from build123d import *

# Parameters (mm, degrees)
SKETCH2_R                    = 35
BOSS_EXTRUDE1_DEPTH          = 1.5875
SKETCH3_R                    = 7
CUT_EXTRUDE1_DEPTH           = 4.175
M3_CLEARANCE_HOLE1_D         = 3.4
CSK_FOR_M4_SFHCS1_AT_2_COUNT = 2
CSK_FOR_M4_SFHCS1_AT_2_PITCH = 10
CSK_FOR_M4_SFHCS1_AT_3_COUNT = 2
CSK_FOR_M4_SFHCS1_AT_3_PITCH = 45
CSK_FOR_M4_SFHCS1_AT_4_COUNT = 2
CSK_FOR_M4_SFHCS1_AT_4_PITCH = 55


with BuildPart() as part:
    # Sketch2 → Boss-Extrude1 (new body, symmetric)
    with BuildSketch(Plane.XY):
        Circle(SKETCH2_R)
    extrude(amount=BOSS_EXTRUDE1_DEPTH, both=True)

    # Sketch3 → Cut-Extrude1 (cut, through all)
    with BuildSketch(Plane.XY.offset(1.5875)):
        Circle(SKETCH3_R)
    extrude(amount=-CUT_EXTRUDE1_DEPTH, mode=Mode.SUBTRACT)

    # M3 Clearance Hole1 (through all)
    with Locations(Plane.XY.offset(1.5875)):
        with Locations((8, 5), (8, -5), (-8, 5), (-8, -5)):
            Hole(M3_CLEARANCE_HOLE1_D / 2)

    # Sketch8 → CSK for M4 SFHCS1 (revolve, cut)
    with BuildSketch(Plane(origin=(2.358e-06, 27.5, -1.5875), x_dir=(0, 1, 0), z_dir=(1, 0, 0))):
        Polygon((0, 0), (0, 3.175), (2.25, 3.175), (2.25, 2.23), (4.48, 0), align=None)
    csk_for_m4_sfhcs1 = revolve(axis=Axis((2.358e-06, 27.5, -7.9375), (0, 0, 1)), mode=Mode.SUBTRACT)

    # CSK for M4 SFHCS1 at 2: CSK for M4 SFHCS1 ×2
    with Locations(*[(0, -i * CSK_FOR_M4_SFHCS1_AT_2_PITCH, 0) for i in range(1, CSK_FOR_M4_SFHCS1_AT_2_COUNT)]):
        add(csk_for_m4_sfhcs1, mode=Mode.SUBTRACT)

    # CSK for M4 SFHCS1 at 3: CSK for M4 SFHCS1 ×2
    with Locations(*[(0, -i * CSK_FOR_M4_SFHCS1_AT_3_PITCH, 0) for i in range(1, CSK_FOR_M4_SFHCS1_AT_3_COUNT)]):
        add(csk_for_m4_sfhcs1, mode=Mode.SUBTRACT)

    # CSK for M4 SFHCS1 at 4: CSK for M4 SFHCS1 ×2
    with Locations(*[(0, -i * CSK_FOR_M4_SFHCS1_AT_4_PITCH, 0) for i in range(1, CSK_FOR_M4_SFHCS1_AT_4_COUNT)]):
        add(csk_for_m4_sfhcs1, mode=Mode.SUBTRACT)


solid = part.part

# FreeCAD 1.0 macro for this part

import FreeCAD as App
import Part
import Sketcher
from FreeCAD import Vector
Q = App.Units.Quantity

doc = App.newDocument("Part")
body = doc.addObject("PartDesign::Body", "Body")

# Sketch on XY plane
sketch1 = body.newObject("Sketcher::SketchObject", "Sketch")
sketch1.AttachmentSupport = (doc.getObject("XY_Plane"), [""])
sketch1.MapMode = "FlatFace"
sketch1.addGeometry(Part.Circle(Vector(0, 0, 0), Vector(0, 0, 1), 35), False)
sketch1.addConstraint([
    Sketcher.Constraint("Coincident", 0, 3, -1, 1),
    Sketcher.Constraint("Diameter", 0, 70.0),
])
pad1 = body.newObject("PartDesign::Pad", "Pad")
pad1.Profile = sketch1
pad1.Length = 3.175
pad1.Midplane = True

# Sketch on XY plane
sketch2 = body.newObject("Sketcher::SketchObject", "Sketch001")
sketch2.AttachmentSupport = (doc.getObject("XY_Plane"), [""])
sketch2.MapMode = "FlatFace"
sketch2.AttachmentOffset = App.Placement(Vector(0, 0, 1.5875), App.Rotation())
sketch2.addGeometry(Part.Circle(Vector(0, 0, 0), Vector(0, 0, 1), 7), False)
sketch2.addConstraint([
    Sketcher.Constraint("Coincident", 0, 3, -1, 1),
    Sketcher.Constraint("Diameter", 0, 14.0),
])
pocket1 = body.newObject("PartDesign::Pocket", "Pocket")
pocket1.Profile = sketch2
pocket1.Type = "ThroughAll"

# Sketch on XY plane
sketch3 = body.newObject("Sketcher::SketchObject", "Sketch002")
sketch3.AttachmentSupport = (doc.getObject("XY_Plane"), [""])
sketch3.MapMode = "FlatFace"
sketch3.AttachmentOffset = App.Placement(Vector(0, 0, 1.5875), App.Rotation())
sketch3.addGeometry([
    Part.Circle(Vector(8, 5, 0), Vector(0, 0, 1), 1.7),
    Part.Circle(Vector(8, -5, 0), Vector(0, 0, 1), 1.7),
    Part.Circle(Vector(-8, 5, 0), Vector(0, 0, 1), 1.7),
    Part.Circle(Vector(-8, -5, 0), Vector(0, 0, 1), 1.7),
], False)
sketch3.addConstraint([
    Sketcher.Constraint("Equal", 0, 1),
    Sketcher.Constraint("Equal", 1, 2),
    Sketcher.Constraint("Equal", 2, 3),
    Sketcher.Constraint("Symmetric", 1, 3, 2, 3, -1, 1),
    Sketcher.Constraint("Symmetric", 0, 3, 3, 3, -1, 1),
    Sketcher.Constraint("Symmetric", 0, 3, 2, 3, -2),
    Sketcher.Constraint("Diameter", 0, 3.4),
    Sketcher.Constraint("DistanceX", -1, 1, 0, 3, 8.0),
    Sketcher.Constraint("DistanceY", -1, 1, 0, 3, 5.0),
])
doc.recompute()
hole = body.newObject("PartDesign::Hole", "Hole")
hole.Profile = sketch3
hole.ThreadType = "None"
hole.Diameter = 3.4
hole.DepthType = "ThroughAll"

# Sketch on YZ plane
sketch4 = body.newObject("Sketcher::SketchObject", "Sketch003")
sketch4.AttachmentSupport = (doc.getObject("YZ_Plane"), [""])
sketch4.MapMode = "FlatFace"
sketch4.AttachmentOffset = App.Placement(Vector(0, 0, 0.000002), App.Rotation())
sketch4.addGeometry([
    Part.LineSegment(Vector(27.5, 1.6, 0), Vector(27.5, -1.6, 0)),  # 0
    Part.LineSegment(Vector(27.5, -1.6, 0), Vector(32, -1.6, 0)),  # 1
    Part.LineSegment(Vector(32, -1.6, 0), Vector(29.8, 0.6, 0)),  # 2
    Part.LineSegment(Vector(29.8, 0.6, 0), Vector(29.8, 1.6, 0)),  # 3
    Part.LineSegment(Vector(29.8, 1.6, 0), Vector(27.5, 1.6, 0)),  # 4
], False)
sketch4.addGeometry(Part.LineSegment(Vector(27.5, -1.6, 0), Vector(27.5, 1.6, 0)), True)  # axis
sketch4.addConstraint([
    Sketcher.Constraint("Coincident", 0, 2, 1, 1),
    Sketcher.Constraint("Coincident", 1, 2, 2, 1),
    Sketcher.Constraint("Coincident", 2, 2, 3, 1),
    Sketcher.Constraint("Coincident", 3, 2, 4, 1),
    Sketcher.Constraint("Coincident", 4, 2, 0, 1),
    Sketcher.Constraint("Vertical", 0),
    Sketcher.Constraint("Horizontal", 1),
    Sketcher.Constraint("Vertical", 3),
    Sketcher.Constraint("Horizontal", 4),
    Sketcher.Constraint("Vertical", 5),
    Sketcher.Constraint("Coincident", 5, 1, 0, 2),
    Sketcher.Constraint("Horizontal", 3, 2, 5, 2),
    Sketcher.Constraint("Angle", 2, Q("135 deg")),
    Sketcher.Constraint("DistanceX", 1, 1, 1, 2, 4.48),
    Sketcher.Constraint("DistanceX", 4, 2, 4, 1, 2.25),
    Sketcher.Constraint("DistanceX", -1, 1, 0, 2, 27.5),
    Sketcher.Constraint("DistanceY", 0, 2, 0, 1, 3.175),
    Sketcher.Constraint("DistanceY", 0, 2, -1, 1, 1.5875),
])
groove = body.newObject("PartDesign::Groove", "Groove")
groove.Profile = sketch4
groove.ReferenceAxis = (sketch4, ["Axis0"])
groove.Angle = 360
doc.recompute()

linearpattern = body.newObject("PartDesign::LinearPattern", "LinearPattern")
linearpattern.Originals = [groove]
linearpattern.Direction = (doc.getObject("Y_Axis"), [""])
linearpattern.Mode = "offset"
linearpattern.Offset = 10
linearpattern.Occurrences = 2
linearpattern.Reversed = True
body.Tip = linearpattern
doc.recompute()

linearpattern2 = body.newObject("PartDesign::LinearPattern", "LinearPattern001")
linearpattern2.Originals = [groove]
linearpattern2.Direction = (doc.getObject("Y_Axis"), [""])
linearpattern2.Mode = "offset"
linearpattern2.Offset = 45
linearpattern2.Occurrences = 2
linearpattern2.Reversed = True
body.Tip = linearpattern2
doc.recompute()

linearpattern3 = body.newObject("PartDesign::LinearPattern", "LinearPattern002")
linearpattern3.Originals = [groove]
linearpattern3.Direction = (doc.getObject("Y_Axis"), [""])
linearpattern3.Mode = "offset"
linearpattern3.Offset = 55
linearpattern3.Occurrences = 2
linearpattern3.Reversed = True
body.Tip = linearpattern3

doc.recompute()
